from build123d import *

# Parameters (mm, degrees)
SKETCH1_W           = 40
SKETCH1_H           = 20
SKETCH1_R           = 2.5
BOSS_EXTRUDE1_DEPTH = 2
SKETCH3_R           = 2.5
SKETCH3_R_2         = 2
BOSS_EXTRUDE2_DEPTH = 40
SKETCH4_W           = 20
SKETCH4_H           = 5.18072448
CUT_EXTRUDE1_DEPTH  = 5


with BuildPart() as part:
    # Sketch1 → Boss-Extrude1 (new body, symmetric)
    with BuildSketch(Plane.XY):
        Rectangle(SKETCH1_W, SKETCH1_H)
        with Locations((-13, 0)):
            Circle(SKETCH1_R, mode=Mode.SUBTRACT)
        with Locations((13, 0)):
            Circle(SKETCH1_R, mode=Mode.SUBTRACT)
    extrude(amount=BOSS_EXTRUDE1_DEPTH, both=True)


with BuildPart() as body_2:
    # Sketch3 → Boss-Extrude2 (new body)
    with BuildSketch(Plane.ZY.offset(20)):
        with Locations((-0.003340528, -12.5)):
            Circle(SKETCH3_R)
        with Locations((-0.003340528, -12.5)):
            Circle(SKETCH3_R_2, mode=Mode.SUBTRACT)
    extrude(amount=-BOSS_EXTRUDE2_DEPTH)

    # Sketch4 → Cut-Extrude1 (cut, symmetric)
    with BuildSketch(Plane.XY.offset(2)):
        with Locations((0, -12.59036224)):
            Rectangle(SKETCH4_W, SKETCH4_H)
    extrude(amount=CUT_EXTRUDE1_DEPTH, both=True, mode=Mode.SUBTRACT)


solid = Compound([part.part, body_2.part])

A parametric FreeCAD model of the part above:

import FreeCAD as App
import Part
import Sketcher
from FreeCAD import Vector


def add_polygon(sketch, points):
    """Adds a closed chain of lines whose ends are joined by coincident constraints."""
    first, n = sketch.GeometryCount, len(points)
    for a, b in zip(points, points[1:] + points[:1]):
        sketch.addGeometry(Part.LineSegment(App.Vector(*a, 0), App.Vector(*b, 0)), False)
    for i in range(n):
        sketch.addConstraint(Sketcher.Constraint("Coincident", first + i, 2, first + (i + 1) % n, 1))

doc = App.newDocument("Part")
body = doc.addObject("PartDesign::Body", "Body")

# Sketch on XY plane
sketch1 = body.newObject("Sketcher::SketchObject", "Sketch")
sketch1.AttachmentSupport = (doc.getObject("XY_Plane"), [""])
sketch1.MapMode = "FlatFace"
add_polygon(sketch1, [(-20, 10), (-20, -10), (20, -10), (20, 10)])  # lines 0-3
sketch1.addGeometry(Part.Circle(Vector(-13, 0, 0), Vector(0, 0, 1), 2.5), False)  # 4
sketch1.addGeometry(Part.Circle(Vector(13, 0, 0), Vector(0, 0, 1), 2.5), False)  # 5
sketch1.addConstraint([
    Sketcher.Constraint("Vertical", 0),
    Sketcher.Constraint("Horizontal", 1),
    Sketcher.Constraint("Vertical", 2),
    Sketcher.Constraint("Horizontal", 3),
    Sketcher.Constraint("Equal", 4, 5),
    Sketcher.Constraint("Symmetric", 4, 3, 5, 3, -1, 1),
    Sketcher.Constraint("Symmetric", 0, 2, 2, 2, -1, 1),
    Sketcher.Constraint("PointOnObject", 4, 3, -1),
    Sketcher.Constraint("Diameter", 4, 5.0),
    Sketcher.Constraint("DistanceX", 1, 1, 1, 2, 40.0),
    Sketcher.Constraint("DistanceY", 0, 2, 0, 1, 20.0),
    Sketcher.Constraint("DistanceX", 4, 3, -1, 1, 13.0),
])
pad1 = body.newObject("PartDesign::Pad", "Pad")
pad1.Profile = sketch1
pad1.Length = 4
pad1.Midplane = True
body2 = doc.addObject("PartDesign::Body", "Body001")
body2.AllowCompound = True

# Sketch on YZ plane
sketch2 = body2.newObject("Sketcher::SketchObject", "Sketch001")
sketch2.AttachmentSupport = (doc.getObject("YZ_Plane001"), [""])
sketch2.MapMode = "FlatFace"
sketch2.AttachmentOffset = App.Placement(Vector(0, 0, -20), App.Rotation())
sketch2.addGeometry([
    Part.Circle(Vector(-12.5, 0, 0), Vector(0, 0, 1), 2.5),
    Part.Circle(Vector(-12.5, 0, 0), Vector(0, 0, 1), 2),
], False)
sketch2.addConstraint([
    Sketcher.Constraint("Coincident", 1, 3, 0, 3),
    Sketcher.Constraint("Diameter", 0, 5.0),
    Sketcher.Constraint("Diameter", 1, 4.0),
    Sketcher.Constraint("DistanceX", 0, 3, -1, 1, 12.5),
    Sketcher.Constraint("DistanceY", 0, 3, -1, 1, 0.003341),
])
pad2 = body2.newObject("PartDesign::Pad", "Pad001")
pad2.Profile = sketch2
pad2.Length = 40

# Sketch on XY plane
sketch3 = body2.newObject("Sketcher::SketchObject", "Sketch002")
sketch3.AttachmentSupport = (doc.getObject("XY_Plane001"), [""])
sketch3.MapMode = "FlatFace"
sketch3.AttachmentOffset = App.Placement(Vector(0, 0, 2), App.Rotation())
add_polygon(sketch3, [(-10, -10), (-10, -15), (10, -15), (10, -10)])  # lines 0-3
sketch3.addConstraint([
    Sketcher.Constraint("Vertical", 0),
    Sketcher.Constraint("Horizontal", 1),
    Sketcher.Constraint("Vertical", 2),
    Sketcher.Constraint("Horizontal", 3),
    Sketcher.Constraint("DistanceX", 1, 1, 1, 2, 20.0),
    Sketcher.Constraint("DistanceX", 0, 2, -1, 1, 10.0),
    Sketcher.Constraint("DistanceY", 2, 2, -1, 1, 10.0),
    Sketcher.Constraint("DistanceY", 0, 2, 0, 1, 5.180724),
])
pocket1 = body2.newObject("PartDesign::Pocket", "Pocket")
pocket1.Profile = sketch3
pocket1.Length = 10
pocket1.Midplane = True

doc.recompute()
